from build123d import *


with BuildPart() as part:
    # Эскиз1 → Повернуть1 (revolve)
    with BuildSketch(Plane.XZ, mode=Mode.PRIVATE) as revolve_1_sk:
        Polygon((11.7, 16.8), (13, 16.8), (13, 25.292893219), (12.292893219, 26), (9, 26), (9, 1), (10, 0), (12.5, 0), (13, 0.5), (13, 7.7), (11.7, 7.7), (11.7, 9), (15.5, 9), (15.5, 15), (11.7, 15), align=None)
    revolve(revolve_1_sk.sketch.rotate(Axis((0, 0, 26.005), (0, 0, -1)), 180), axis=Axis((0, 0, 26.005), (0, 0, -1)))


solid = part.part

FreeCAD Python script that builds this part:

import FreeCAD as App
import Part
import Sketcher
from FreeCAD import Vector
Q = App.Units.Quantity


def add_polygon(sketch, points):
    """Adds a closed chain of lines whose ends are joined by coincident constraints."""
    first, n = sketch.GeometryCount, len(points)
    for a, b in zip(points, points[1:] + points[:1]):
        sketch.addGeometry(Part.LineSegment(App.Vector(*a, 0), App.Vector(*b, 0)), False)
    for i in range(n):
        sketch.addConstraint(Sketcher.Constraint("Coincident", first + i, 2, first + (i + 1) % n, 1))

doc = App.newDocument("Part")
params = doc.addObject("Spreadsheet::Sheet", "Params")
for row, (alias, value) in enumerate([
    ("sketch1_height", "25 mm"),
    ("sketch1_height2", "6 mm"),
    ("sketch1_length", "1 mm"),
    ("sketch1_width", "1.3 mm"),
    ("sketch1_width2", "2.5 mm"),
    ("revolution_angle", "360 deg"),
], start=1):
    params.set(f"A{row}", alias)
    params.set(f"B{row}", "=" + value)
    params.setAlias(f"B{row}", alias)

body = doc.addObject("PartDesign::Body", "Body")

sketch1 = doc.addObject("Sketcher::SketchObject", "Sketch")
body.addObject(sketch1)
sketch1.AttachmentSupport = (doc.XZ_Plane, [""])
sketch1.MapMode = "FlatFace"
add_polygon(sketch1, [(11.7, 16.8), (13, 16.8), (13, 25.292893), (12.292893, 26), (9, 26), (9, 1), (10, 0), (12.5, 0), (13, 0.5), (13, 7.7), (11.7, 7.7), (11.7, 9), (15.5, 9), (15.5, 15), (11.7, 15)])
sketch1.addConstraint(Sketcher.Constraint("Horizontal", 0))
sketch1.addConstraint(Sketcher.Constraint("Vertical", 1))
sketch1.addConstraint(Sketcher.Constraint("Horizontal", 3))
sketch1.addConstraint(Sketcher.Constraint("Vertical", 4))
sketch1.addConstraint(Sketcher.Constraint("Horizontal", 6))
sketch1.addConstraint(Sketcher.Constraint("Vertical", 8))
sketch1.addConstraint(Sketcher.Constraint("Horizontal", 9))
sketch1.addConstraint(Sketcher.Constraint("Vertical", 10))
sketch1.addConstraint(Sketcher.Constraint("Horizontal", 11))
sketch1.addConstraint(Sketcher.Constraint("Vertical", 12))
sketch1.addConstraint(Sketcher.Constraint("Horizontal", 13))
sketch1.addConstraint(Sketcher.Constraint("Vertical", 14))
sketch1.addConstraint(Sketcher.Constraint("PointOnObject", 5, 2, -1))
sketch1.addConstraint(Sketcher.Constraint("Parallel", 2, 5))
sketch1.addConstraint(Sketcher.Constraint("Perpendicular", 5, 7))
sketch1.addConstraint(Sketcher.Constraint("Vertical", 1, 2, 7, 2))
sketch1.addConstraint(Sketcher.Constraint("Vertical", 10, 2, 13, 2))
sketch1.addConstraint(Sketcher.Constraint("Equal", 9, 10))
sketch1.addConstraint(Sketcher.Constraint("DistanceY", 4, 2, 4, 1, Q("25 mm")))
sketch1.addConstraint(Sketcher.Constraint("DistanceY", 12, 1, 12, 2, Q("6 mm")))
sketch1.addConstraint(Sketcher.Constraint("Angle", 2, Q("135 deg")))
sketch1.addConstraint(Sketcher.Constraint("Distance", 2, Q("1 mm")))
sketch1.addConstraint(Sketcher.Constraint("DistanceX", 0, 1, 0, 2, Q("1.3 mm")))
sketch1.addConstraint(Sketcher.Constraint("DistanceX", 6, 1, 6, 2, Q("2.5 mm")))
sketch1.addConstraint(Sketcher.Constraint("DistanceX", 11, 1, 11, 2, Q("3.8 mm")))
sketch1.addConstraint(Sketcher.Constraint("DistanceY", 8, 1, 8, 2, Q("7.2 mm")))
sketch1.addConstraint(Sketcher.Constraint("DistanceY", 14, 1, 14, 2, Q("1.8 mm")))
sketch1.addConstraint(Sketcher.Constraint("DistanceX", -1, 1, 0, 2, Q("13 mm")))
sketch1.addConstraint(Sketcher.Constraint("DistanceY", -1, 1, 2, 2, Q("26 mm")))
sketch1.addConstraint(Sketcher.Constraint("DistanceX", -1, 1, 3, 2, Q("9 mm")))
sketch1.setExpression("Constraints[33]", "Params.sketch1_height")
sketch1.setExpression("Constraints[34]", "Params.sketch1_height2")
sketch1.setExpression("Constraints[36]", "Params.sketch1_length")
sketch1.setExpression("Constraints[37]", "Params.sketch1_width")
sketch1.setExpression("Constraints[38]", "Params.sketch1_width2")
revolution = doc.addObject("PartDesign::Revolution", "Revolution")
body.addObject(revolution)
revolution.Profile = sketch1
revolution.ReferenceAxis = (sketch1, ["V_Axis"])
revolution.setExpression("Angle", "Params.revolution_angle")

doc.recompute()
